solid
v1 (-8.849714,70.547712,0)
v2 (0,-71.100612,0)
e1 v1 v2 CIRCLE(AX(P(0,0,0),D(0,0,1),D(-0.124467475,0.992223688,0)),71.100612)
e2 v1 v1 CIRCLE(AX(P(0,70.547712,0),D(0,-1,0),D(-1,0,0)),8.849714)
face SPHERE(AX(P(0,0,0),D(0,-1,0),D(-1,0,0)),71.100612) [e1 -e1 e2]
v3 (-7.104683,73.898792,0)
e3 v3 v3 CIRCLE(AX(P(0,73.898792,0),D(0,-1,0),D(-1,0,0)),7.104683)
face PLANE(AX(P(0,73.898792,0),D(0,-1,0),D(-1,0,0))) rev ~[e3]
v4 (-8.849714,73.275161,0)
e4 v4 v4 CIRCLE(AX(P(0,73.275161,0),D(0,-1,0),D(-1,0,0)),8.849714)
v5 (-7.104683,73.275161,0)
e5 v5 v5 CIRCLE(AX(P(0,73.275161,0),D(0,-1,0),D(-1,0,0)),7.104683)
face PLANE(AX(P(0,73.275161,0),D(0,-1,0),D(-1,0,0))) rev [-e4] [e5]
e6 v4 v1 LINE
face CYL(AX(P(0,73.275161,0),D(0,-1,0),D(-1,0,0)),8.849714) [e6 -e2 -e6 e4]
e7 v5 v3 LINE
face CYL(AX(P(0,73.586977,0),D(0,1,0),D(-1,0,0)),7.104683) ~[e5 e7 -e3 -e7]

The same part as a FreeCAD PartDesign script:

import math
import FreeCAD as App
import Part
import Sketcher
Q = App.Units.Quantity

doc = App.newDocument("Part")
params = doc.addObject("Spreadsheet::Sheet", "Params")
for row, (alias, value) in enumerate([
    ("revolution_angle", "360 deg"),
], start=1):
    params.set(f"A{row}", alias)
    params.set(f"B{row}", "=" + value)
    params.setAlias(f"B{row}", alias)

body = doc.addObject("PartDesign::Body", "Body")

# Sketch on XY plane
sketch1 = doc.addObject("Sketcher::SketchObject", "Sketch")
body.addObject(sketch1)
sketch1.AttachmentSupport = (doc.XY_Plane, [""])
sketch1.MapMode = "FlatFace"
sketch1.addGeometry([
    Part.LineSegment(App.Vector(0, -71.1, 0), App.Vector(0, 73.9, 0)),  # 0
    Part.LineSegment(App.Vector(0, 73.9, 0), App.Vector(-7.1, 73.9, 0)),  # 1
    Part.LineSegment(App.Vector(-7.1, 73.9, 0), App.Vector(-7.1, 73.3, 0)),  # 2
    Part.LineSegment(App.Vector(-7.1, 73.3, 0), App.Vector(-8.8, 73.3, 0)),  # 3
    Part.LineSegment(App.Vector(-8.8, 73.3, 0), App.Vector(-8.8, 70.5, 0)),  # 4
    Part.ArcOfCircle(Part.Circle(App.Vector(0, 0, 0), App.Vector(0, 0, 1), 71.1), math.radians(97), math.radians(270)),  # 5
], False)
sketch1.addConstraint([
    Sketcher.Constraint("Coincident", 0, 2, 1, 1),
    Sketcher.Constraint("Coincident", 1, 2, 2, 1),
    Sketcher.Constraint("Coincident", 2, 2, 3, 1),
    Sketcher.Constraint("Coincident", 3, 2, 4, 1),
    Sketcher.Constraint("Coincident", 4, 2, 5, 1),
    Sketcher.Constraint("Coincident", 5, 2, 0, 1),
    Sketcher.Constraint("Vertical", 0),
    Sketcher.Constraint("Horizontal", 1),
    Sketcher.Constraint("Vertical", 2),
    Sketcher.Constraint("Horizontal", 3),
    Sketcher.Constraint("Vertical", 4),
    Sketcher.Constraint("Coincident", 5, 3, -1, 1),
    Sketcher.Constraint("PointOnObject", 0, 2, -2),
    Sketcher.Constraint("Radius", 5, Q("71.100612 mm")),
    Sketcher.Constraint("DistanceX", 3, 2, 3, 1, Q("1.745031 mm")),
    Sketcher.Constraint("DistanceY", 2, 2, 2, 1, Q("0.623631 mm")),
    Sketcher.Constraint("DistanceY", 4, 2, 4, 1, Q("2.72745 mm")),
    Sketcher.Constraint("DistanceX", 1, 2, 1, 1, Q("7.104683 mm")),
])
revolution = doc.addObject("PartDesign::Revolution", "Revolution")
body.addObject(revolution)
revolution.Profile = sketch1
revolution.ReferenceAxis = (sketch1, ["V_Axis"])
revolution.setExpression("Angle", "Params.revolution_angle")

doc.recompute()
